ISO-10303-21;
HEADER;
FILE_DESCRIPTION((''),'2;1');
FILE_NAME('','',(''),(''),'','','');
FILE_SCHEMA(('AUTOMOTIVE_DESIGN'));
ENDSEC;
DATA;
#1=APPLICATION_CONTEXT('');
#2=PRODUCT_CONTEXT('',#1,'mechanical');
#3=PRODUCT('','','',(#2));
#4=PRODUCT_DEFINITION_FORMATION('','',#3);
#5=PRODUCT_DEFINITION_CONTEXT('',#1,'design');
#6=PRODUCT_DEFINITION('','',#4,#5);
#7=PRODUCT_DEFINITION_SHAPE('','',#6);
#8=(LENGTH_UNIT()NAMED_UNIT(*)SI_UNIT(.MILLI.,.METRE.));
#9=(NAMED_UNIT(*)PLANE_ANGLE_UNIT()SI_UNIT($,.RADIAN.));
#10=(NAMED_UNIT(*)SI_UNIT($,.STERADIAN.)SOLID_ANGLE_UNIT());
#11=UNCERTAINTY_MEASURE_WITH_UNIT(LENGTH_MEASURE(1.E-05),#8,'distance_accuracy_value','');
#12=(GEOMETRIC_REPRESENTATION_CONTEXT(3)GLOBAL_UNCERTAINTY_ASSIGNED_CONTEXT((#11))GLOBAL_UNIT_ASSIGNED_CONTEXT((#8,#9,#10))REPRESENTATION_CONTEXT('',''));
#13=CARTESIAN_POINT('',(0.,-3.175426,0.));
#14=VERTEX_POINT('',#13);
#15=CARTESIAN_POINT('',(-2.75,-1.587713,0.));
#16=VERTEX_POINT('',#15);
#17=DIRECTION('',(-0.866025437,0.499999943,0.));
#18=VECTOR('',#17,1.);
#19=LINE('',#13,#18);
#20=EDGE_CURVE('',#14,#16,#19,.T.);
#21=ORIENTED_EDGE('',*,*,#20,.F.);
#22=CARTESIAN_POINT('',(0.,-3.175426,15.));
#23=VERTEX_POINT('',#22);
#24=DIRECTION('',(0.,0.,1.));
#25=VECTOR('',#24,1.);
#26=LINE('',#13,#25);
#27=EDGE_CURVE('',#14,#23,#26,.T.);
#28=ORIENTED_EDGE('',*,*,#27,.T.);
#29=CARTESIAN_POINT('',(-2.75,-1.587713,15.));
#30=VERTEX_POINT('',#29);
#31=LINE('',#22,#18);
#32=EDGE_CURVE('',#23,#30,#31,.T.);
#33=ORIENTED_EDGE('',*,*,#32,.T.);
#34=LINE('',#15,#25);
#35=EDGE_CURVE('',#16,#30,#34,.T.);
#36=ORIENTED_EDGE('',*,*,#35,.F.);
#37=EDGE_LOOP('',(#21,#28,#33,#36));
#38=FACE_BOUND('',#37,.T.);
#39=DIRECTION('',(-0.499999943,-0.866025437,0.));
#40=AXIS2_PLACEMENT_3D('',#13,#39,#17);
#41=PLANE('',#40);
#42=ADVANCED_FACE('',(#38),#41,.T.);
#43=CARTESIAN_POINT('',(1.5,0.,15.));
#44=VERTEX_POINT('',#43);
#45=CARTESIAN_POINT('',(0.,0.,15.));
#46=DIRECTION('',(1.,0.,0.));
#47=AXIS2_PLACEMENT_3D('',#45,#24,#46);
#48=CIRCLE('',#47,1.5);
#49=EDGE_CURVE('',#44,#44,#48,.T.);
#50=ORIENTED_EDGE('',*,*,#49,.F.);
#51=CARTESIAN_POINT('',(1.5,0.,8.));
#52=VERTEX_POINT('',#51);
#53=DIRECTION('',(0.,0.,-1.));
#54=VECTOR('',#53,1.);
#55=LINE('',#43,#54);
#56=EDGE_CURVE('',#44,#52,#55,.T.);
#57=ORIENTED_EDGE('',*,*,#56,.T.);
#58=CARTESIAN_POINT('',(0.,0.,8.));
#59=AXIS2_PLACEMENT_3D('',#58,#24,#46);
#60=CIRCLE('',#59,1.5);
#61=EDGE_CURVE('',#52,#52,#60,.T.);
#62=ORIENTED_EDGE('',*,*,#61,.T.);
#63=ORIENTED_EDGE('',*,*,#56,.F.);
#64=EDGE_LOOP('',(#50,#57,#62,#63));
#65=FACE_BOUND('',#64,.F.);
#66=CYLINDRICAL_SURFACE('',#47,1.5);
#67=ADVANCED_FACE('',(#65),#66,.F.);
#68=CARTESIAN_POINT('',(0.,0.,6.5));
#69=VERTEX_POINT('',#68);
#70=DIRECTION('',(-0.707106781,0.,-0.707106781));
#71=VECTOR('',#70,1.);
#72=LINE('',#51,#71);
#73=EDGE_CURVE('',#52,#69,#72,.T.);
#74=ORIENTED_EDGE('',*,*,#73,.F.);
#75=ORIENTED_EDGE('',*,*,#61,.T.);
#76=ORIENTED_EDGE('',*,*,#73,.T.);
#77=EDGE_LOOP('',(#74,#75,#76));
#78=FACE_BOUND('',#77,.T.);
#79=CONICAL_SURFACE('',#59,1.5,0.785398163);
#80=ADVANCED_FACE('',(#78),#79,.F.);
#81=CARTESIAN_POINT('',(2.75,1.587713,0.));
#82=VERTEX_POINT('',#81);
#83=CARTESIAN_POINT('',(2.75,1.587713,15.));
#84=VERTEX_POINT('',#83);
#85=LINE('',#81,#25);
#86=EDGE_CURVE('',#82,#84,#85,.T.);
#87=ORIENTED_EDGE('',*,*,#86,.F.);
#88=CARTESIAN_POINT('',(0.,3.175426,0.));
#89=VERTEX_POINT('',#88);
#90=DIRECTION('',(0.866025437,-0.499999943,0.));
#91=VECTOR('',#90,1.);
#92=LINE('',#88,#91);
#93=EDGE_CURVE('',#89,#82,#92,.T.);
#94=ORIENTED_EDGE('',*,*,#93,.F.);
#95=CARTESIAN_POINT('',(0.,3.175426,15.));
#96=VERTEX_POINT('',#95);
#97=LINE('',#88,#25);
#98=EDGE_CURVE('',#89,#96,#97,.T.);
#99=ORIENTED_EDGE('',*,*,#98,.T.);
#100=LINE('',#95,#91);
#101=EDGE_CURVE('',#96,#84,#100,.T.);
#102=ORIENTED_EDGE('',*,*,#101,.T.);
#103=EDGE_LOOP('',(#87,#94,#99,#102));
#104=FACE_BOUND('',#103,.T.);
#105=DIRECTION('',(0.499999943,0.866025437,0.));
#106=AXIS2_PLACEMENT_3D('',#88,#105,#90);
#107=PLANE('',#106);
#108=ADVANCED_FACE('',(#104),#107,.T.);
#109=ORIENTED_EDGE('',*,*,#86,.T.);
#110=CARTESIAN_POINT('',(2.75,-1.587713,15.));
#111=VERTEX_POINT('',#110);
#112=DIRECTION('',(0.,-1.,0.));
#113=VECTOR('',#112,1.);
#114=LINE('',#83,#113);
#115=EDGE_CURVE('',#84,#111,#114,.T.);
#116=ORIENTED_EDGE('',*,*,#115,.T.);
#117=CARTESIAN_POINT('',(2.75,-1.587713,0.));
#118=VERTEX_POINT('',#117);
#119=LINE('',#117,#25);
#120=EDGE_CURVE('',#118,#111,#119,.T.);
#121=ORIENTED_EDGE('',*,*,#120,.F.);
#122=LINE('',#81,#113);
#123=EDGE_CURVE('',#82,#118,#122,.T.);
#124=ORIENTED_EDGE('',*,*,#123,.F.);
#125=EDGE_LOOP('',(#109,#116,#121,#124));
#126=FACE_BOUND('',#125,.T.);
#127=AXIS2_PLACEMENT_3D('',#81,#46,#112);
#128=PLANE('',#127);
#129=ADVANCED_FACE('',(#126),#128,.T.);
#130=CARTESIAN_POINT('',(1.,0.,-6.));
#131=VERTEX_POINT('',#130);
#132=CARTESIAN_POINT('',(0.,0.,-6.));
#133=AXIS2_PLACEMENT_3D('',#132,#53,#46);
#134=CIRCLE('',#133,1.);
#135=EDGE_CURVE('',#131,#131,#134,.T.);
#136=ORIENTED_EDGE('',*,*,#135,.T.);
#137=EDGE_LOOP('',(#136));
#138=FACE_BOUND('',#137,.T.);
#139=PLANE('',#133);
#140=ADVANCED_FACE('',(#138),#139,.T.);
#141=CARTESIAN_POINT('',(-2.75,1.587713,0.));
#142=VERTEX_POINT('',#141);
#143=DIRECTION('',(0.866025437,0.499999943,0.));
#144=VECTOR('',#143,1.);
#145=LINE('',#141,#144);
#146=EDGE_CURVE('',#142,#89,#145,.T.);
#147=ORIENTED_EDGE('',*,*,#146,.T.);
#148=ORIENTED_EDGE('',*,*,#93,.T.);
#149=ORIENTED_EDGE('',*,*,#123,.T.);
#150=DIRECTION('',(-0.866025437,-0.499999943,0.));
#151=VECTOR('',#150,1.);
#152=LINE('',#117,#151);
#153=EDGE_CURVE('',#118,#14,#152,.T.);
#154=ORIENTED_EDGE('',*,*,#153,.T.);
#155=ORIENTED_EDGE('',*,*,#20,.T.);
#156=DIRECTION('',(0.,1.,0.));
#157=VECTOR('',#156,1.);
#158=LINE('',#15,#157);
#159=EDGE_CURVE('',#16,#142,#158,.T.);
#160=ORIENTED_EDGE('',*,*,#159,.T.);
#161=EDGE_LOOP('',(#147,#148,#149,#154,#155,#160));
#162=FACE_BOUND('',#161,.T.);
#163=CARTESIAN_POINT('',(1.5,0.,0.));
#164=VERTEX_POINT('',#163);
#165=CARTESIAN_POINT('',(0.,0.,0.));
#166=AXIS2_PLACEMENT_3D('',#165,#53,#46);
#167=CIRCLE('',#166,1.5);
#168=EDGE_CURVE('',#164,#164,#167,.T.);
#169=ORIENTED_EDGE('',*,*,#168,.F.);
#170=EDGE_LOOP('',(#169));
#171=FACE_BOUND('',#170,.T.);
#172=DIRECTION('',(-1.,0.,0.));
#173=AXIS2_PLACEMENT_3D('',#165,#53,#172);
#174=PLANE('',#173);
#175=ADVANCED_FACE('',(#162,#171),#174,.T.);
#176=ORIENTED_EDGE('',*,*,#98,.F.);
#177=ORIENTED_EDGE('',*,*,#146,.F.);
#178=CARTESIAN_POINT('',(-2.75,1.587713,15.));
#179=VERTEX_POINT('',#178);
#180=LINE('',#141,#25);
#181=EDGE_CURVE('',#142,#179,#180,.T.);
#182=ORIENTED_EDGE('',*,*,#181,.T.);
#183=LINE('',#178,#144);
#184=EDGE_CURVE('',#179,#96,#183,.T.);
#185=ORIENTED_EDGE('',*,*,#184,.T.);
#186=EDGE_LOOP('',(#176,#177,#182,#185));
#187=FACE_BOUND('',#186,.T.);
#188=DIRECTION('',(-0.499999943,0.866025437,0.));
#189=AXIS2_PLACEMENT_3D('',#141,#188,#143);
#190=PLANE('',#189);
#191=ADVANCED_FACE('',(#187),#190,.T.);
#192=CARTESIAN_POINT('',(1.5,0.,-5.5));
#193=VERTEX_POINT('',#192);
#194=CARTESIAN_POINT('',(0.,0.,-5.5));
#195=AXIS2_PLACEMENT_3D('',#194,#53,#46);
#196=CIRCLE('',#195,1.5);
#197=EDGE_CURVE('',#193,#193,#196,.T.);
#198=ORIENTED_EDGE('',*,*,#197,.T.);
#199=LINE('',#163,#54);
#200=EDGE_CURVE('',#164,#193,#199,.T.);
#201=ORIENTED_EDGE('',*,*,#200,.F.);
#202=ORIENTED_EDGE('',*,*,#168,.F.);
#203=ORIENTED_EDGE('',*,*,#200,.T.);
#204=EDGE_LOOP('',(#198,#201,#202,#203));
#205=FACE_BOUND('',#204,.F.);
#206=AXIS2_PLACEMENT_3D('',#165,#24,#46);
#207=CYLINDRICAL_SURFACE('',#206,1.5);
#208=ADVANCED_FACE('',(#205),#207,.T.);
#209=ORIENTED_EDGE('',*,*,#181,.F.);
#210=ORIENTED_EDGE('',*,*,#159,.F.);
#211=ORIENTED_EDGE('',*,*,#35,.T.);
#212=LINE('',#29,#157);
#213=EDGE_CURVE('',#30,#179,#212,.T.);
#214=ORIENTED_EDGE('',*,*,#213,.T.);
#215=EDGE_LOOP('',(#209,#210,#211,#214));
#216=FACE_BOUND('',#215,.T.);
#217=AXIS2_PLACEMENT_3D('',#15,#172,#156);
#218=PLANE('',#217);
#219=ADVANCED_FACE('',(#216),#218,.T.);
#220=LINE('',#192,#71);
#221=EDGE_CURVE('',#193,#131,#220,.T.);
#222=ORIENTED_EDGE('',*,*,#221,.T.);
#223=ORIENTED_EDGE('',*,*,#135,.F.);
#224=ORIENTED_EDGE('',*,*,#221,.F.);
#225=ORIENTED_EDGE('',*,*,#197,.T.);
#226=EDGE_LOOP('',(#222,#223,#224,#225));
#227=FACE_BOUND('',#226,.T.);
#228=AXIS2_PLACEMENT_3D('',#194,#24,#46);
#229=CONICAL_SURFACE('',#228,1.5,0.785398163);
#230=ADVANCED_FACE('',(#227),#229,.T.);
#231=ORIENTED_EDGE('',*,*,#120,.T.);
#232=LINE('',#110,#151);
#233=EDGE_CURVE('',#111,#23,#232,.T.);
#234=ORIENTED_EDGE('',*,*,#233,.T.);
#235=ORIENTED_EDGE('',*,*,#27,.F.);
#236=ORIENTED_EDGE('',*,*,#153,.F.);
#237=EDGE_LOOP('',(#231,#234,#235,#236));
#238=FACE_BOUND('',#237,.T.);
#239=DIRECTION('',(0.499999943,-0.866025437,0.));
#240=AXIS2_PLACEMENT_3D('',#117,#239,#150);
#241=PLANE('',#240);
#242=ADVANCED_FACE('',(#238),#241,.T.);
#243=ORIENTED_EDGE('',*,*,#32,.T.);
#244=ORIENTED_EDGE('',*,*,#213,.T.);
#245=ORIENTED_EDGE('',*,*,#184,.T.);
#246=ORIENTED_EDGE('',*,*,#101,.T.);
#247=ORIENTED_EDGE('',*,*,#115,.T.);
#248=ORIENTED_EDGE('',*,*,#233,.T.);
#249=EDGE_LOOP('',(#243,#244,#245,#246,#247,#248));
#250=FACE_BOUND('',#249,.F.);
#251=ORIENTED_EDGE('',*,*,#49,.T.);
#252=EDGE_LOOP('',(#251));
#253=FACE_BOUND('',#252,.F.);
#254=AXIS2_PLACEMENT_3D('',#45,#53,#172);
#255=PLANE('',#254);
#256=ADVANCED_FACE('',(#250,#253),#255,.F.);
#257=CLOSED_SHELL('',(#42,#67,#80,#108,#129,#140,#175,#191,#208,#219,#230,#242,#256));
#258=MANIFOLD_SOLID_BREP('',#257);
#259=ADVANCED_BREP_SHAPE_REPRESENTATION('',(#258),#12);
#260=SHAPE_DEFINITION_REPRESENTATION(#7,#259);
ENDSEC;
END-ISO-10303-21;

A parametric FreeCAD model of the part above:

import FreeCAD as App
import Part
import Sketcher

V = App.Vector
Q = App.Units.Quantity


def edges_at(feature, points):
    """Names of the edges that pass closest to the given points."""
    edges = feature.Shape.Edges
    near = lambda p: min(range(len(edges)), key=lambda i: edges[i].distToShape(Part.Vertex(*p))[0])
    return sorted({f"Edge{near(p) + 1}" for p in points})


def add_polygon(sketch, points):
    """Adds a closed chain of lines whose ends are joined by coincident constraints."""
    first, n = sketch.GeometryCount, len(points)
    for a, b in zip(points, points[1:] + points[:1]):
        sketch.addGeometry(Part.LineSegment(App.Vector(*a, 0), App.Vector(*b, 0)), False)
    for i in range(n):
        sketch.addConstraint(Sketcher.Constraint("Coincident", first + i, 2, first + (i + 1) % n, 1))

doc = App.newDocument("Part")
body = doc.addObject("PartDesign::Body", "Body")

sketch1 = doc.addObject("Sketcher::SketchObject", "Sketch")
body.addObject(sketch1)
sketch1.AttachmentSupport = (doc.XY_Plane, [""])
sketch1.MapMode = "FlatFace"
add_polygon(sketch1, [(-2.75, 1.587713), (-2.75, -1.587713), (0, -3.175426), (2.75, -1.587713), (2.75, 1.587713), (0, 3.175426)])
sketch1.addConstraint([
    Sketcher.Constraint("Vertical", 0),
    Sketcher.Constraint("Vertical", 3),
    Sketcher.Constraint("Symmetric", 0, 2, 3, 2, -1, 1),
    Sketcher.Constraint("Symmetric", 1, 2, 4, 2, -1, 1),
    Sketcher.Constraint("PointOnObject", 1, 2, -2),
    Sketcher.Constraint("Parallel", 2, 5),
    Sketcher.Constraint("Horizontal", 0, 2, 2, 2),
    Sketcher.Constraint("Angle", 1, Q("-29.999996 deg")),
    Sketcher.Constraint("DistanceX", 0, 2, 2, 2, Q("5.5 mm")),
    Sketcher.Constraint("DistanceY", 0, 2, 0, 1, Q("3.175426 mm")),
])
pad1 = doc.addObject("PartDesign::Pad", "Pad")
body.addObject(pad1)
pad1.Profile = sketch1
pad1.Length = 15

sketch2 = doc.addObject("Sketcher::SketchObject", "Sketch001")
body.addObject(sketch2)
sketch2.AttachmentSupport = (doc.XY_Plane, [""])
sketch2.MapMode = "FlatFace"
sketch2.addGeometry(Part.Circle(V(0, 0, 0), V(0, 0, 1), 1.5), False)
sketch2.addConstraint([
    Sketcher.Constraint("Coincident", 0, 3, -1, 1),
    Sketcher.Constraint("Diameter", 0, Q("3 mm")),
])
pad2 = doc.addObject("PartDesign::Pad", "Pad001")
body.addObject(pad2)
pad2.Profile = sketch2
pad2.Length = 6
pad2.Reversed = True

sketch3 = doc.addObject("Sketcher::SketchObject", "Sketch002")
body.addObject(sketch3)
sketch3.AttachmentSupport = (doc.XY_Plane, [""])
sketch3.MapMode = "FlatFace"
sketch3.AttachmentOffset = App.Placement(V(0, 0, 15), App.Rotation())
sketch3.addGeometry(Part.Circle(V(0, 0, 0), V(0, 0, 1), 1.5), False)
sketch3.addConstraint([
    Sketcher.Constraint("Coincident", 0, 3, -1, 1),
    Sketcher.Constraint("Diameter", 0, Q("3 mm")),
])
pocket1 = doc.addObject("PartDesign::Pocket", "Pocket")
body.addObject(pocket1)
pocket1.Profile = sketch3
pocket1.Length = 8.5
doc.recompute()

chamfer = doc.addObject("PartDesign::Chamfer", "Chamfer")
body.addObject(chamfer)
chamfer.Base = (pocket1, edges_at(pocket1, [(-1.5, 0, 6.5)]))
chamfer.Size = 1.5
doc.recompute()

chamfer2 = doc.addObject("PartDesign::Chamfer", "Chamfer001")
body.addObject(chamfer2)
chamfer2.Base = (chamfer, edges_at(chamfer, [(-1.5, 0, -6)]))
chamfer2.Size = 0.5

doc.recompute()
